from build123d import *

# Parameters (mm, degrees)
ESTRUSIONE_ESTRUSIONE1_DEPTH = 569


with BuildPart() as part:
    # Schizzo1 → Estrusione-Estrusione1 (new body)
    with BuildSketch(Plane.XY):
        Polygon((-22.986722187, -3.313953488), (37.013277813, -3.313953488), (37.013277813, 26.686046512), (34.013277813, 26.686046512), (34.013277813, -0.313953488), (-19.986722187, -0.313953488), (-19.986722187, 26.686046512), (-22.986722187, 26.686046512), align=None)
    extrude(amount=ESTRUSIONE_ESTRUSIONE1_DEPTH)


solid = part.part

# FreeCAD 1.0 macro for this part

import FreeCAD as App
import Part
import Sketcher
from FreeCAD import Vector


def add_polygon(sketch, points):
    """Adds a closed chain of lines whose ends are joined by coincident constraints."""
    first, n = sketch.GeometryCount, len(points)
    for a, b in zip(points, points[1:] + points[:1]):
        sketch.addGeometry(Part.LineSegment(App.Vector(*a, 0), App.Vector(*b, 0)), False)
    for i in range(n):
        sketch.addConstraint(Sketcher.Constraint("Coincident", first + i, 2, first + (i + 1) % n, 1))

doc = App.newDocument("Part")
params = doc.addObject("Spreadsheet::Sheet", "Params")
for row, (alias, value) in enumerate([
    ("sketch1_width", "60 mm"),
    ("sketch1_width2", "3 mm"),
    ("sketch1_height", "30 mm"),
    ("sketch1_height2", "27 mm"),
    ("pad1_length", "569 mm"),
], start=1):
    params.set(f"A{row}", alias)
    params.set(f"B{row}", "=" + value)
    params.setAlias(f"B{row}", alias)

body = doc.addObject("PartDesign::Body", "Body")

sketch1 = body.newObject("Sketcher::SketchObject", "Sketch")
sketch1.AttachmentSupport = (doc.getObject("XY_Plane"), [""])
sketch1.MapMode = "FlatFace"
add_polygon(sketch1, [(-22.986722, -3.313953), (37.013278, -3.313953), (37.013278, 26.686047), (34.013278, 26.686047), (34.013278, -0.313953), (-19.986722, -0.313953), (-19.986722, 26.686047), (-22.986722, 26.686047)])
sketch1.addConstraint(Sketcher.Constraint("Horizontal", 0))
sketch1.addConstraint(Sketcher.Constraint("Vertical", 1))
sketch1.addConstraint(Sketcher.Constraint("Horizontal", 2))
sketch1.addConstraint(Sketcher.Constraint("Vertical", 3))
sketch1.addConstraint(Sketcher.Constraint("Horizontal", 4))
sketch1.addConstraint(Sketcher.Constraint("Vertical", 5))
sketch1.addConstraint(Sketcher.Constraint("Horizontal", 6))
sketch1.addConstraint(Sketcher.Constraint("Vertical", 7))
sketch1.addConstraint(Sketcher.Constraint("Horizontal", 2, 2, 5, 2))
sketch1.addConstraint(Sketcher.Constraint("Equal", 2, 6))
sketch1.addConstraint(Sketcher.Constraint("DistanceX", 0, 1, 0, 2, 60.0))
sketch1.addConstraint(Sketcher.Constraint("DistanceX", 2, 2, 2, 1, 3.0))
sketch1.addConstraint(Sketcher.Constraint("DistanceY", 1, 1, 1, 2, 30.0))
sketch1.addConstraint(Sketcher.Constraint("DistanceY", 3, 2, 3, 1, 27.0))
sketch1.addConstraint(Sketcher.Constraint("DistanceX", -1, 1, 0, 2, 37.013278))
sketch1.addConstraint(Sketcher.Constraint("DistanceY", 0, 2, -1, 1, 3.313953))
sketch1.setExpression("Constraints[18]", "Params.sketch1_width")
sketch1.setExpression("Constraints[19]", "Params.sketch1_width2")
sketch1.setExpression("Constraints[20]", "Params.sketch1_height")
sketch1.setExpression("Constraints[21]", "Params.sketch1_height2")
pad1 = body.newObject("PartDesign::Pad", "Pad")
pad1.Profile = sketch1
pad1.setExpression("Length", "Params.pad1_length")

doc.recompute()
